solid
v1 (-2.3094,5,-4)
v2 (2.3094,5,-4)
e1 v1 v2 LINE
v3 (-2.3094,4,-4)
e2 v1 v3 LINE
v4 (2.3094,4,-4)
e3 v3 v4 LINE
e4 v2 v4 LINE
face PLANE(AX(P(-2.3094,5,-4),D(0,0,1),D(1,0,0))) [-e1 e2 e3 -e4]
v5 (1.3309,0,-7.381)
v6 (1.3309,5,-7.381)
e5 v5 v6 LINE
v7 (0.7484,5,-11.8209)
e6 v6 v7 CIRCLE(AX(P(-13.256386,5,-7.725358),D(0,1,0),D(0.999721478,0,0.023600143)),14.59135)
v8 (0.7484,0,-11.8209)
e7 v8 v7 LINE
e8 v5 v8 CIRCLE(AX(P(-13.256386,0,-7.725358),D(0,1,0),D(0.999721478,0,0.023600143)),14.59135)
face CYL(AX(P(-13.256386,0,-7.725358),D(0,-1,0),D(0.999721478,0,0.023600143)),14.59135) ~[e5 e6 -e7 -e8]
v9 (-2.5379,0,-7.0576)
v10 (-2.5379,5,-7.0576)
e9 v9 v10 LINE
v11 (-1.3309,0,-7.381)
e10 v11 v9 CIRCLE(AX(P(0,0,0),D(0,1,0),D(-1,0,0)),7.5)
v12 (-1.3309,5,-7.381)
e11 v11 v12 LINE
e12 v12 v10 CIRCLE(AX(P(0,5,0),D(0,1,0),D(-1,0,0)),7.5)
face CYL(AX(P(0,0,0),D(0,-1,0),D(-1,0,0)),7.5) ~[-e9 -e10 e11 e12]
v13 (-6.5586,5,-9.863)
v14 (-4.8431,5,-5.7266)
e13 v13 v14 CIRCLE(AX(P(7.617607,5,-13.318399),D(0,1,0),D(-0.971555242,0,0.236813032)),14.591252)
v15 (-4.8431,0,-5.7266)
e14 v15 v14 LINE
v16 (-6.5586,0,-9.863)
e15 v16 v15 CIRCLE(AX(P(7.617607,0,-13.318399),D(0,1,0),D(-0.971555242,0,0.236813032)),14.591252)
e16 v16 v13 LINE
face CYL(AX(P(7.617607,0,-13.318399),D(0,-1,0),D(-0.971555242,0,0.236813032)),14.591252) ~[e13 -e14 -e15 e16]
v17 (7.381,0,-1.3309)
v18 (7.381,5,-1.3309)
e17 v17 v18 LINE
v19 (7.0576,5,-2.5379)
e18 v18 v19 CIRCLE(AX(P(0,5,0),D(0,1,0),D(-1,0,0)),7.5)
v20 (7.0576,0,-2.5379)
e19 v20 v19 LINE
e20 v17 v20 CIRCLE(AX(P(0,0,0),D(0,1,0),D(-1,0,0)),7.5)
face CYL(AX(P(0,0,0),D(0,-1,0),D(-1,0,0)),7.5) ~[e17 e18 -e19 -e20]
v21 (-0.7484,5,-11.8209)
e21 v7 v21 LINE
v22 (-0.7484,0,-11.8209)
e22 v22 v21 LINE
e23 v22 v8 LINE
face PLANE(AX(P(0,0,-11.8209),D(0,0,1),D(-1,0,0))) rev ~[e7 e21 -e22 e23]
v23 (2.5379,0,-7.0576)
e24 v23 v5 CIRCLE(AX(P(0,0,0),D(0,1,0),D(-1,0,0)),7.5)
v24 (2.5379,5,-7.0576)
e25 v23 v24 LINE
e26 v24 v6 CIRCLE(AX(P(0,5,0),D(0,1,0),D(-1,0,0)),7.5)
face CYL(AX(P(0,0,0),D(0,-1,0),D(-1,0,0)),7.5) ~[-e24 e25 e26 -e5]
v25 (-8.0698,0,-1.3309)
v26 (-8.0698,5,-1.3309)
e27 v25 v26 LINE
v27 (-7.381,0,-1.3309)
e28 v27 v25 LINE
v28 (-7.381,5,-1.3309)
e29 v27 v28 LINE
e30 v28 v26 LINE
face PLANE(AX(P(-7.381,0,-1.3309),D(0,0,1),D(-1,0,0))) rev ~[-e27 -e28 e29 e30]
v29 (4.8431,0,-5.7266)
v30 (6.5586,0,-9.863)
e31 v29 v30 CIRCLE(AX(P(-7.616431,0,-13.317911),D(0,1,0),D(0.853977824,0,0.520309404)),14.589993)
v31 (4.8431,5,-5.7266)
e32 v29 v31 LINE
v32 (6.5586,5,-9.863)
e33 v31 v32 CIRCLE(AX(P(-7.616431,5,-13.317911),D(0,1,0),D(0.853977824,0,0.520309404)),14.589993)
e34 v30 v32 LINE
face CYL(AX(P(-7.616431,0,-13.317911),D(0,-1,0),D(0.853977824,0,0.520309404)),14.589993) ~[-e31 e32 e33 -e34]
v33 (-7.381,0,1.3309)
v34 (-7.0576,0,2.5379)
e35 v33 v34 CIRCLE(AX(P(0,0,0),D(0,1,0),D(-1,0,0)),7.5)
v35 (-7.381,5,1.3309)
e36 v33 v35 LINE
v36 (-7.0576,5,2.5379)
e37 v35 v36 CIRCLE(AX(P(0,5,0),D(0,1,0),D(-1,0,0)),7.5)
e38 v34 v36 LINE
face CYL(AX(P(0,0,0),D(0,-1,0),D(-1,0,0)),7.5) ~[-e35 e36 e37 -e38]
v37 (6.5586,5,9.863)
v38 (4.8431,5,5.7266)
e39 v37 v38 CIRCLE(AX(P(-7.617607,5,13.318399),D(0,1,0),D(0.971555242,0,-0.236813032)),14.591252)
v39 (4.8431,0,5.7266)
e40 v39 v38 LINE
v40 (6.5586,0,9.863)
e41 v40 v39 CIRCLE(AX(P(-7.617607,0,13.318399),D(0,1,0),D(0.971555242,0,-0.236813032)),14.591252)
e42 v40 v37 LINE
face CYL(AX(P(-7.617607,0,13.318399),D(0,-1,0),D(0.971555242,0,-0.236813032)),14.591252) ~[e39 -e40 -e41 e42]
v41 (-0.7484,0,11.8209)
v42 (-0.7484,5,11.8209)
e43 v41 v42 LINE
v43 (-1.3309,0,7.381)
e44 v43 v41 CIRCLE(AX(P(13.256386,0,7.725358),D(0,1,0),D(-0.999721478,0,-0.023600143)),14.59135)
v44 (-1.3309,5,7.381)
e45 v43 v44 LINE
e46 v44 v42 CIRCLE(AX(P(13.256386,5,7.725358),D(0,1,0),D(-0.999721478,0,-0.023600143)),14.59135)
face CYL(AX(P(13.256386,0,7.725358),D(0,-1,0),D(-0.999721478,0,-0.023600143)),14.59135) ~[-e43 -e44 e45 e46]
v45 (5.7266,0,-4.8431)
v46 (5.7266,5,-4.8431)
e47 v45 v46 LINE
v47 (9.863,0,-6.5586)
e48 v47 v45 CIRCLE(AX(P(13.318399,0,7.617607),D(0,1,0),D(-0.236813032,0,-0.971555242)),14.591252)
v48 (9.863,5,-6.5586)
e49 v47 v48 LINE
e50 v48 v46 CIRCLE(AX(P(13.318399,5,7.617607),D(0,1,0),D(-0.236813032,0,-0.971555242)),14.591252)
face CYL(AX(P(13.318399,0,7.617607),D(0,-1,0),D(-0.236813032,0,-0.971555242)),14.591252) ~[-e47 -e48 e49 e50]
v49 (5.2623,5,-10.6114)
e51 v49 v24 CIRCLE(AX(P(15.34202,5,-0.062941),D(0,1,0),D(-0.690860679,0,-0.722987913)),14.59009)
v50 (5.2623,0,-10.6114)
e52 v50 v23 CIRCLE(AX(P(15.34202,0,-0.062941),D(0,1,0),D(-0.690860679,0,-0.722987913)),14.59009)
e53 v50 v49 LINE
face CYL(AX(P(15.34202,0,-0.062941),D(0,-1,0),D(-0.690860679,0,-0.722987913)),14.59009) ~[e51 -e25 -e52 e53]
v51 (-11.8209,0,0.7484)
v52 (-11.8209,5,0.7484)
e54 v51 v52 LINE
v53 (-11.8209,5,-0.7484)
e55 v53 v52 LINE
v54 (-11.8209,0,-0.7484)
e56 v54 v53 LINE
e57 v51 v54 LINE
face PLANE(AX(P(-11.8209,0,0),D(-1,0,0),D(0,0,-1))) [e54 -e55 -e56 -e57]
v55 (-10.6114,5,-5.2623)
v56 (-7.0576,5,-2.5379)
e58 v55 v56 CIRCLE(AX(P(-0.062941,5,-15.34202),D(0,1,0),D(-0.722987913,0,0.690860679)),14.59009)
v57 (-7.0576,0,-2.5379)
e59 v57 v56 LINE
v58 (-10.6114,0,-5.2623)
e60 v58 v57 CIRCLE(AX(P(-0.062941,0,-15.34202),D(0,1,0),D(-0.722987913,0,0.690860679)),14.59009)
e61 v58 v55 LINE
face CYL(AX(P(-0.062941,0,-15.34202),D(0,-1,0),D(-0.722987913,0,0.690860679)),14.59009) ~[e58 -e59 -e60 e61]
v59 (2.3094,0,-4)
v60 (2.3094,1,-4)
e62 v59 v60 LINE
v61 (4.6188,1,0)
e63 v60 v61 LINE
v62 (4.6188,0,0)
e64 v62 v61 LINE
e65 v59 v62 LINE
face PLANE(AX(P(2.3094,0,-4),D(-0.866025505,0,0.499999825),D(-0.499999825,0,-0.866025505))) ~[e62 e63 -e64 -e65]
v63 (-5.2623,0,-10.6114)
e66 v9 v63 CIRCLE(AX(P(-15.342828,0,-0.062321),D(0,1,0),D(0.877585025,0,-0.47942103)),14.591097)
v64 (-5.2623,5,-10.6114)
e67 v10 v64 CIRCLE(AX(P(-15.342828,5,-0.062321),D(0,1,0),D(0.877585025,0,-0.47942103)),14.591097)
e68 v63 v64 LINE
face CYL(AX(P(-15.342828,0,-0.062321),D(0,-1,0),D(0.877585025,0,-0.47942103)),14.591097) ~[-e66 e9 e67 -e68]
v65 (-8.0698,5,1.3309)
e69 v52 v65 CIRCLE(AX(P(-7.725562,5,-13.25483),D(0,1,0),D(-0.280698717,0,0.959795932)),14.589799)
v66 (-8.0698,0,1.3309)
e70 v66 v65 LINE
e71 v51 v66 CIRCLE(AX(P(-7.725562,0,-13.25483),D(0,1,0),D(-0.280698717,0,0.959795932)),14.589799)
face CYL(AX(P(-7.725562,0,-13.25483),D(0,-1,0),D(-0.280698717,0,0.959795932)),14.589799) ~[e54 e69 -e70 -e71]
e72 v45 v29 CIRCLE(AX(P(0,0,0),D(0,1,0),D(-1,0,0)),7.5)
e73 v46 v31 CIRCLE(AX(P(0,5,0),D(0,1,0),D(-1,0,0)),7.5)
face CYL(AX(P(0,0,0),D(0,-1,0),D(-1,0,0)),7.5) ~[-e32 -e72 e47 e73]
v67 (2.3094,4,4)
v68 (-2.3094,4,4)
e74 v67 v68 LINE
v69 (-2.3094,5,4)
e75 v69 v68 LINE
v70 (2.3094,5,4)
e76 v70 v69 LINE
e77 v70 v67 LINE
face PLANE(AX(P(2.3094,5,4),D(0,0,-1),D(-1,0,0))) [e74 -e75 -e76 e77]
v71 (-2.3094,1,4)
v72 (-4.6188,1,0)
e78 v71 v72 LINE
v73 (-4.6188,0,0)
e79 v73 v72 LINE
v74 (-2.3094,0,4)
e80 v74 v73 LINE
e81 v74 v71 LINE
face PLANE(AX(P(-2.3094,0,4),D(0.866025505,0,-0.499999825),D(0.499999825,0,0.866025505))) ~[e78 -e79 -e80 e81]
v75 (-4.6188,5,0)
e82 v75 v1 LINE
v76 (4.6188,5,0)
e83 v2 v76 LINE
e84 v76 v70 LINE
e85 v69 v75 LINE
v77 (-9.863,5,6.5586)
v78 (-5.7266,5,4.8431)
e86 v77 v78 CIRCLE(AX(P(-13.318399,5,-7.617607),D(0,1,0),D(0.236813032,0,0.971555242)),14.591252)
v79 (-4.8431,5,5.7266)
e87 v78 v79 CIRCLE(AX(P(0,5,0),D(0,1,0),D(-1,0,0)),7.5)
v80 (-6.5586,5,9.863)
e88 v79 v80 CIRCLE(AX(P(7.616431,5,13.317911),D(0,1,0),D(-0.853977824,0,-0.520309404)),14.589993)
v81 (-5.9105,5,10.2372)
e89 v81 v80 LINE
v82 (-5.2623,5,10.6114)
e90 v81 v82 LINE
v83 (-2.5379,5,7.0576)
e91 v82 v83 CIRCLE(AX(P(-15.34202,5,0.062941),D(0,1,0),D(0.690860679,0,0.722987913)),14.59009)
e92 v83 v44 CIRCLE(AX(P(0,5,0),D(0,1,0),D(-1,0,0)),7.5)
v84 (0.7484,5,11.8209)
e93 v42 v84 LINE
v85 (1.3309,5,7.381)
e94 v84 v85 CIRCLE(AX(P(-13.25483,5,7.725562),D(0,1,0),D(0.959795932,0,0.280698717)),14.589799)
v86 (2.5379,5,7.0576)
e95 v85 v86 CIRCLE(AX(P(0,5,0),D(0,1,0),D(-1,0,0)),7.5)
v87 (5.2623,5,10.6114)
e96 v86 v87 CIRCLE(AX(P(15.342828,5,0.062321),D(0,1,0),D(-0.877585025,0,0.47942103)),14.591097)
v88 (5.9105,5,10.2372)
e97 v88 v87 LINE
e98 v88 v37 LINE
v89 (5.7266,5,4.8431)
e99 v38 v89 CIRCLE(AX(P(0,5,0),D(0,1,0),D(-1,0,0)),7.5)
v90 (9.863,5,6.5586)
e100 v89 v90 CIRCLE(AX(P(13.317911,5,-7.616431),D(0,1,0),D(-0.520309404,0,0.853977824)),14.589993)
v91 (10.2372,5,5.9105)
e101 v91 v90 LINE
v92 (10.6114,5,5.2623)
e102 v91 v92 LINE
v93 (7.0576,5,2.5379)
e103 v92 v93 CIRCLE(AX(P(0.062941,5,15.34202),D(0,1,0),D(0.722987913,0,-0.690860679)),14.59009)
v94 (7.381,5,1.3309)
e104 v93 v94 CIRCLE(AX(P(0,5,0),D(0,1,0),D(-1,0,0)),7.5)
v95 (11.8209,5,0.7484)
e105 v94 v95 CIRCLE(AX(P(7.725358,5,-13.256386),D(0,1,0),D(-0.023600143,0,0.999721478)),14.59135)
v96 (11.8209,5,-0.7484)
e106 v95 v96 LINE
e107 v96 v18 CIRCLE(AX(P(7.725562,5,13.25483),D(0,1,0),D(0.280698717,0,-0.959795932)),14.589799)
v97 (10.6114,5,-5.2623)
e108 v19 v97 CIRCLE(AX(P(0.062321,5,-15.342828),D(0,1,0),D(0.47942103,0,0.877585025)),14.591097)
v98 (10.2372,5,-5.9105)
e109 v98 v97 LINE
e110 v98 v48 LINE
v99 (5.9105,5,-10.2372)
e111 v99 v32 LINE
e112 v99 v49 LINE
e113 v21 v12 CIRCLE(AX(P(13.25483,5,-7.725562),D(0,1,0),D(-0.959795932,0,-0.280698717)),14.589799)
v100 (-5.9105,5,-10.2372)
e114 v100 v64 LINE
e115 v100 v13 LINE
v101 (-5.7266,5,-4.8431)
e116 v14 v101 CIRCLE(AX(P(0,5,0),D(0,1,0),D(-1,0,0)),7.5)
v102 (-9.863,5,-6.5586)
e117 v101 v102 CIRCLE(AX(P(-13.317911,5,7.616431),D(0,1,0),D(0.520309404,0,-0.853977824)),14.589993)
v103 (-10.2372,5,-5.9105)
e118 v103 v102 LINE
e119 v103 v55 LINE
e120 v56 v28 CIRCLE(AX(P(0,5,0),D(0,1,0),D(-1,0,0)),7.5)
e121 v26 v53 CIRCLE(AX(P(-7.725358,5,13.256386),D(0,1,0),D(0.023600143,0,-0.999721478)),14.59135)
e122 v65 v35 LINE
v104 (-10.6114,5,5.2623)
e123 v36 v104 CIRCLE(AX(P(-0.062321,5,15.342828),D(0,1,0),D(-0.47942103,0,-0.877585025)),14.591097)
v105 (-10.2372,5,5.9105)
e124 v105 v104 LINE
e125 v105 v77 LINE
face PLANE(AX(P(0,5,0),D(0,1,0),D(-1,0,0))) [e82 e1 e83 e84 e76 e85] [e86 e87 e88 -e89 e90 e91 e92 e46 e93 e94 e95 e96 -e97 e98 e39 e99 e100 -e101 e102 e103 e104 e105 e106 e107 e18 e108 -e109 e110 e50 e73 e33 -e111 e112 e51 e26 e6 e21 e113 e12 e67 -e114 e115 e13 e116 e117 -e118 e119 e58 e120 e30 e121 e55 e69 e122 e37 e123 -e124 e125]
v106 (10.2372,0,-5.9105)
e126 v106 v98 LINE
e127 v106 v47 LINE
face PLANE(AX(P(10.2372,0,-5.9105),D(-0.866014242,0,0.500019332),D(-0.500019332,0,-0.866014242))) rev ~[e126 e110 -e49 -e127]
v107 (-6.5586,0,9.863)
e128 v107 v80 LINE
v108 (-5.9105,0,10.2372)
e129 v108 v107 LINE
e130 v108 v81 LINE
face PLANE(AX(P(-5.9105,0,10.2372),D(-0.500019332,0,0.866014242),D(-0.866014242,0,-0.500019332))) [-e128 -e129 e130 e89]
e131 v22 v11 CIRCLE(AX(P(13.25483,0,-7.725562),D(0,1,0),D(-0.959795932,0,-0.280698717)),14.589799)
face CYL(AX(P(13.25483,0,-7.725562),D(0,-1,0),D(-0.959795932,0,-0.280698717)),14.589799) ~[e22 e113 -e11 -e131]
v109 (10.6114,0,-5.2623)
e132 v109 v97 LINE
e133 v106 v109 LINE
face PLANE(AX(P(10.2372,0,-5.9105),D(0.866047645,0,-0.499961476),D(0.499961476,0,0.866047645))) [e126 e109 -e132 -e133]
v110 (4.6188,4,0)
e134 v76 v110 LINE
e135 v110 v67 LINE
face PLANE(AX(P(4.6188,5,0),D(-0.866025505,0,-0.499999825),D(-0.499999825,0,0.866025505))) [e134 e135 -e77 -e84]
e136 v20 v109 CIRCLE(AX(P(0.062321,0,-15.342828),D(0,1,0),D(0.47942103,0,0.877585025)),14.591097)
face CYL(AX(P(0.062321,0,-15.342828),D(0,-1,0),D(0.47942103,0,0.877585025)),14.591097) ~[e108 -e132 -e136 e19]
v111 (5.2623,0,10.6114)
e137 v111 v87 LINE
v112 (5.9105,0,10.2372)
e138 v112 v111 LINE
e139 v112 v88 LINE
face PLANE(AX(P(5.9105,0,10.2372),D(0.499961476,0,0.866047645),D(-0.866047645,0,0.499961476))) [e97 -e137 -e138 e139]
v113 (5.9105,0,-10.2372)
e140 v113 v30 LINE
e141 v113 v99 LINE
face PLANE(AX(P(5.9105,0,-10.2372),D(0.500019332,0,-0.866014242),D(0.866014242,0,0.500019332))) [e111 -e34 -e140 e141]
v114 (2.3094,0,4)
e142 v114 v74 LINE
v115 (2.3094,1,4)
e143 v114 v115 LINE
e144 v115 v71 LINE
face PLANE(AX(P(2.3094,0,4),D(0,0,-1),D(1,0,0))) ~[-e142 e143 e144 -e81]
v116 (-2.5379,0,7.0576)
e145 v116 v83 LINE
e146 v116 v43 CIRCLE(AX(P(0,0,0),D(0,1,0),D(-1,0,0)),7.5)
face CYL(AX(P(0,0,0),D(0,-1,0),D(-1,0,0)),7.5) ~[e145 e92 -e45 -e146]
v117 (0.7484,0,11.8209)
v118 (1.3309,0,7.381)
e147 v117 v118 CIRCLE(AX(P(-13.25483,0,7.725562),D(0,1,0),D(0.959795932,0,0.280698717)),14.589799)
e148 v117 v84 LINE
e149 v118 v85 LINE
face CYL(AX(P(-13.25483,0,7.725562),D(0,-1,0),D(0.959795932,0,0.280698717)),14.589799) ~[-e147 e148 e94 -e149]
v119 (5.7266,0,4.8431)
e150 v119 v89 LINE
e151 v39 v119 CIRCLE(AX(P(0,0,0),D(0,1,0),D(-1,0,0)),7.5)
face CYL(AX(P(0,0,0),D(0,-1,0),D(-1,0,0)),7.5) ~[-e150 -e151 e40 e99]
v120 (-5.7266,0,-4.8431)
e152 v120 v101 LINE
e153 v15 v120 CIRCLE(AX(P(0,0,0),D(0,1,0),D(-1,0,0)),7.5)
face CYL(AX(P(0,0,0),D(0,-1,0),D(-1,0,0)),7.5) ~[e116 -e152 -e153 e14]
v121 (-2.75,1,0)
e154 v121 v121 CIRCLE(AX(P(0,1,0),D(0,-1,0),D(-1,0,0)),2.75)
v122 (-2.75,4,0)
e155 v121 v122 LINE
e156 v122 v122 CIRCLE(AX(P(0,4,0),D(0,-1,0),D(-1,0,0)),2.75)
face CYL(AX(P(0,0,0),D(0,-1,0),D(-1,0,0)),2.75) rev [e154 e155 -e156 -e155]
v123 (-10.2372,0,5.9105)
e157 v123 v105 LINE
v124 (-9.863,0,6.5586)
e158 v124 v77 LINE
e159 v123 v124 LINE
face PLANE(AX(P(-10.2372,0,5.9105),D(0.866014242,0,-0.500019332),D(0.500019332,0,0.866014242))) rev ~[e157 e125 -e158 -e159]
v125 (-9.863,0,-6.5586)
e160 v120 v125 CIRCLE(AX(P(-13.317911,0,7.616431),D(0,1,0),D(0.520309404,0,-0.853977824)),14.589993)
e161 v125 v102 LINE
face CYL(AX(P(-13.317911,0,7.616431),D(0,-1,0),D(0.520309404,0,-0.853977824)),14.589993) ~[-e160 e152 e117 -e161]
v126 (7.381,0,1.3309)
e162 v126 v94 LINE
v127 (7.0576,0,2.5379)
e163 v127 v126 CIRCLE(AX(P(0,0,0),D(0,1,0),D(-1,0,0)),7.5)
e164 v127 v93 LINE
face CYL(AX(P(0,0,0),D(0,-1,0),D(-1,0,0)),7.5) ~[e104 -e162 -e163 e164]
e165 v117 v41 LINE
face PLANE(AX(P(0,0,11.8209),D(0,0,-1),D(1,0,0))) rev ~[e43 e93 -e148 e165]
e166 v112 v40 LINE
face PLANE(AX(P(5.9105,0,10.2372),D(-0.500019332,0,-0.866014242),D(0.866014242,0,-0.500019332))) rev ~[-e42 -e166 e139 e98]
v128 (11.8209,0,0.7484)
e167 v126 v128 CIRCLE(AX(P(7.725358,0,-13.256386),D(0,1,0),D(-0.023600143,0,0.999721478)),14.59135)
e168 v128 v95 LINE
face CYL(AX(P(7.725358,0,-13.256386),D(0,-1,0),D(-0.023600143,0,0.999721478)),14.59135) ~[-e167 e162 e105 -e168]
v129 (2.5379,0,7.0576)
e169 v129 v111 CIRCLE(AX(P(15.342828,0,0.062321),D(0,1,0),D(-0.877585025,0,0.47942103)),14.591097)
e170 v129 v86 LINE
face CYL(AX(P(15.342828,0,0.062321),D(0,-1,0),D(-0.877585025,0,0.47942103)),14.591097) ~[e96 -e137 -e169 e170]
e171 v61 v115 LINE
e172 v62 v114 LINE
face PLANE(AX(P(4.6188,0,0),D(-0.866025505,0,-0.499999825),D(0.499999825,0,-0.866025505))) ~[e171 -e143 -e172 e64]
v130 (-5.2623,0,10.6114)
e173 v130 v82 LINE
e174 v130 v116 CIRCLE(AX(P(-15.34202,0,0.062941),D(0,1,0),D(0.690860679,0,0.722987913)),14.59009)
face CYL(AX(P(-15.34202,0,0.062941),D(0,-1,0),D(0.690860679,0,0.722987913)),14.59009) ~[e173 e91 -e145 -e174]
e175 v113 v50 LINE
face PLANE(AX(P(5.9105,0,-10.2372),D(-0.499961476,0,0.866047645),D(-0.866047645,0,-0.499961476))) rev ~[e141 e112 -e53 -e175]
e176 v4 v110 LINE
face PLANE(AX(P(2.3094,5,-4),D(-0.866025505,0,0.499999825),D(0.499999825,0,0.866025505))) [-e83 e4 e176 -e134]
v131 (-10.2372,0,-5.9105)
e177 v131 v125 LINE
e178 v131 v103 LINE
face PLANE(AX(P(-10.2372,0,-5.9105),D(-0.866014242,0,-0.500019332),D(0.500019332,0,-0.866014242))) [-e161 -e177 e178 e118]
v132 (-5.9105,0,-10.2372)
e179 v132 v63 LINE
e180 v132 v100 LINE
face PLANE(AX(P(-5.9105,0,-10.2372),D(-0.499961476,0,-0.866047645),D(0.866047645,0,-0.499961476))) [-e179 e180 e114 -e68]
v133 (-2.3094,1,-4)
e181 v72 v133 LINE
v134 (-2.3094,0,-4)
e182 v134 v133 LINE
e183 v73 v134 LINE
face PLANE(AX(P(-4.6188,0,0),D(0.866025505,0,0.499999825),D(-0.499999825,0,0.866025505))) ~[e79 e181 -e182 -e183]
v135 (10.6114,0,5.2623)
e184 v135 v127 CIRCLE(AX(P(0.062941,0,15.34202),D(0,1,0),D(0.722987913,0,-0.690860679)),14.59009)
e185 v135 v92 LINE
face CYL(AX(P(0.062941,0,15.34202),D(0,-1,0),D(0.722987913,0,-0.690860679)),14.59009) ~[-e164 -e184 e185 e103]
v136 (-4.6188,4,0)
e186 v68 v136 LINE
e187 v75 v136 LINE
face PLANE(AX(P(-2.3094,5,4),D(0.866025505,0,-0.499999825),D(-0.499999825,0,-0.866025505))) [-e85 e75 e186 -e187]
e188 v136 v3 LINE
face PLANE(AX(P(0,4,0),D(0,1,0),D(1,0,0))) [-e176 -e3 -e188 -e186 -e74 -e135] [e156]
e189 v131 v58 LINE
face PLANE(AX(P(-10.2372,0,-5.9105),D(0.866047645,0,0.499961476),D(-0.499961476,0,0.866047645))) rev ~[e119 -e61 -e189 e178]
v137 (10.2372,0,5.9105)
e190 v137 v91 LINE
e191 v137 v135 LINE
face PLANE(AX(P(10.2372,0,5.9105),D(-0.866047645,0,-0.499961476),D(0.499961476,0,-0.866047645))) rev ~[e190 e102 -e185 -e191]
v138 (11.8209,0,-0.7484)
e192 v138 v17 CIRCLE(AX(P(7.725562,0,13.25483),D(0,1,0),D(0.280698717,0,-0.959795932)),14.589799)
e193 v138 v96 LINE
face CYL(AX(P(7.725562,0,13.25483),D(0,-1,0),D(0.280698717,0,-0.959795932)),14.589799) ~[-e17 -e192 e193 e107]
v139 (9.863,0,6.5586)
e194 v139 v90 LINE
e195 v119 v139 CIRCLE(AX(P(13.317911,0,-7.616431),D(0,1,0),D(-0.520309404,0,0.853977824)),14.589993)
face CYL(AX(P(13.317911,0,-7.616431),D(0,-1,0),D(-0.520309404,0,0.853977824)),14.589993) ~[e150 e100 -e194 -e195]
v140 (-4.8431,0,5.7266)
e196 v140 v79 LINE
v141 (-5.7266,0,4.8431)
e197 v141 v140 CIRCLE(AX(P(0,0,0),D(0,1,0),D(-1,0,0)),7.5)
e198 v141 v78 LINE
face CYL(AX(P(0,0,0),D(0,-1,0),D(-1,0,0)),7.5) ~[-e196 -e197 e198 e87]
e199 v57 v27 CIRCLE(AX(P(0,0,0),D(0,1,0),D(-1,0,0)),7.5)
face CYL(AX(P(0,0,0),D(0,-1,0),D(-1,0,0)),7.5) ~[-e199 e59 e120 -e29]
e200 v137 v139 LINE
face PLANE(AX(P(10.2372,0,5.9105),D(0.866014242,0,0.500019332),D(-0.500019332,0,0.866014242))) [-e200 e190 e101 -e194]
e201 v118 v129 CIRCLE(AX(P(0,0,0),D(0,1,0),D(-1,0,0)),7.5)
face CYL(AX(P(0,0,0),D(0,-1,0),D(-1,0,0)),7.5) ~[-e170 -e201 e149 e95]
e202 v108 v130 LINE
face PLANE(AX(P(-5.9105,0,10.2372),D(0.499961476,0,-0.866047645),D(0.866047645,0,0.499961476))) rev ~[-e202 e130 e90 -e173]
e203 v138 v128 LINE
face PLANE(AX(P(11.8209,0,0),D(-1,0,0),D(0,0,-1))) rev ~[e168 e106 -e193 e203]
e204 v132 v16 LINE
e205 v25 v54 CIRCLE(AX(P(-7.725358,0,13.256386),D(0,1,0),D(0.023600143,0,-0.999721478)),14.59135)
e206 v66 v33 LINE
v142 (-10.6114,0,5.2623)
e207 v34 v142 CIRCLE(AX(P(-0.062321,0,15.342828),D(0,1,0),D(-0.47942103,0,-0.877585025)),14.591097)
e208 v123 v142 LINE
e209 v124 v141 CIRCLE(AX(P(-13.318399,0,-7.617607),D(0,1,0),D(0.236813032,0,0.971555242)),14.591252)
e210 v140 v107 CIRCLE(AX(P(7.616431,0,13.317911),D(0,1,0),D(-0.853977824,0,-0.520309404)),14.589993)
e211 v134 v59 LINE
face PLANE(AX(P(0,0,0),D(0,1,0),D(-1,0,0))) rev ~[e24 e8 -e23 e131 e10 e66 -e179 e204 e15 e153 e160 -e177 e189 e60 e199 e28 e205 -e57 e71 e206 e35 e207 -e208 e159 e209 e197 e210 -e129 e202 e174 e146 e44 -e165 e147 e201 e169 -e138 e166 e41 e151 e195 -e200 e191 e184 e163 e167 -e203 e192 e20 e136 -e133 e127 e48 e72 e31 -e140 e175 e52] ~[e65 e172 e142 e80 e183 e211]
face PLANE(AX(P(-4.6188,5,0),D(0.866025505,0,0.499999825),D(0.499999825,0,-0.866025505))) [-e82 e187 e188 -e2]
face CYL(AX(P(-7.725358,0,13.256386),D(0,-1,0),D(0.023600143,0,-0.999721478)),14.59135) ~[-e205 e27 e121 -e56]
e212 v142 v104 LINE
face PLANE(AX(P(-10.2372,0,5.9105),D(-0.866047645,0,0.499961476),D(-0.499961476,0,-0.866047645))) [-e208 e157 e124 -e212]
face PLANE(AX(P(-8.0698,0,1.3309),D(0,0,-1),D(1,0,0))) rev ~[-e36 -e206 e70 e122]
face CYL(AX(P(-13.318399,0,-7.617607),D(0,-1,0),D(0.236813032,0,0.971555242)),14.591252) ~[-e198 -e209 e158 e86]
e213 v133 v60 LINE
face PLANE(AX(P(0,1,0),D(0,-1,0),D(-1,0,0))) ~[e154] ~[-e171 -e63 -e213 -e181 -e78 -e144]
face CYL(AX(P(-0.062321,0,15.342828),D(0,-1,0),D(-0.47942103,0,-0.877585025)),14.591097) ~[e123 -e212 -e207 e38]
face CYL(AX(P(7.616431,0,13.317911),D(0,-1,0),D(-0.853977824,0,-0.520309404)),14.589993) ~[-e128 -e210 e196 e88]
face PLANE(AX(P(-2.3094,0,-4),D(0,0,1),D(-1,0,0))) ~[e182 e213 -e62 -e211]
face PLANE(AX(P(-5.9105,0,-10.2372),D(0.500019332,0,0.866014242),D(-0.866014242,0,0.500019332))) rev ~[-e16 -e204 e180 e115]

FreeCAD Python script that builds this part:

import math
import FreeCAD as App
import Part
import Sketcher
from FreeCAD import Vector
Q = App.Units.Quantity

doc = App.newDocument("Part")
params = doc.addObject("Spreadsheet::Sheet", "Params")
for row, (alias, value) in enumerate([
    ("sketch1_diameter", "5.5 mm"),
    ("sketch1_radius", "7.5 mm"),
    ("pad1_length", "5 mm"),
    ("pocket1_length", "1 mm"),
], start=1):
    params.set(f"A{row}", alias)
    params.set(f"B{row}", "=" + value)
    params.setAlias(f"B{row}", alias)

body = doc.addObject("PartDesign::Body", "Body")

sketch1 = body.newObject("Sketcher::SketchObject", "Sketch")
sketch1.AttachmentSupport = (doc.getObject("XZ_Plane"), [""])
sketch1.MapMode = "FlatFace"
sketch1.addGeometry(Part.ArcOfCircle(Part.Circle(Vector(0, 0, 0), Vector(0, 0, 1), 7.5), math.radians(-169.78), math.radians(-160.22)), False)
sketch1.addGeometry(Part.LineSegment(Vector(-7.4, -1.3, 0), Vector(-8.1, -1.3, 0)), False)
sketch1.addGeometry(Part.ArcOfCircle(Part.Circle(Vector(-7.7, 13.3, 0), Vector(0, 0, 1), 14.6), math.radians(-106.3), math.radians(-91.35)), False)
sketch1.addGeometry(Part.LineSegment(Vector(-11.8, -0.7, 0), Vector(-11.8, 0.7, 0)), False)
sketch1.addGeometry(Part.ArcOfCircle(Part.Circle(Vector(-7.7, -13.3, 0), Vector(0, 0, 1), 14.6), math.radians(91.35), math.radians(106.3)), False)
sketch1.addGeometry(Part.LineSegment(Vector(-8.1, 1.3, 0), Vector(-7.4, 1.3, 0)), False)
sketch1.addGeometry(Part.ArcOfCircle(Part.Circle(Vector(0, 0, 0), Vector(0, 0, 1), 7.5), math.radians(160.22), math.radians(169.78)), False)
sketch1.addGeometry(Part.ArcOfCircle(Part.Circle(Vector(-0.1, 15.3, 0), Vector(0, 0, 1), 14.6), math.radians(-136.3), math.radians(-118.65)), False)
sketch1.addGeometry(Part.LineSegment(Vector(-10.6, 5.3, 0), Vector(-10.2, 5.9, 0)), False)
sketch1.addGeometry(Part.LineSegment(Vector(-10.2, 5.9, 0), Vector(-9.9, 6.6, 0)), False)
sketch1.addGeometry(Part.ArcOfCircle(Part.Circle(Vector(-13.3, -7.6, 0), Vector(0, 0, 1), 14.6), math.radians(58.65), math.radians(76.3)), False)
sketch1.addGeometry(Part.ArcOfCircle(Part.Circle(Vector(0, 0, 0), Vector(0, 0, 1), 7.5), math.radians(130.22), math.radians(139.78)), False)
sketch1.addGeometry(Part.ArcOfCircle(Part.Circle(Vector(7.6, 13.3, 0), Vector(0, 0, 1), 14.6), math.radians(-166.3), math.radians(-148.65)), False)
sketch1.addGeometry(Part.LineSegment(Vector(-6.6, 9.9, 0), Vector(-5.9, 10.2, 0)), False)
sketch1.addGeometry(Part.LineSegment(Vector(-5.9, 10.2, 0), Vector(-5.3, 10.6, 0)), False)
sketch1.addGeometry(Part.ArcOfCircle(Part.Circle(Vector(-15.3, 0.1, 0), Vector(0, 0, 1), 14.6), math.radians(28.65), math.radians(46.3)), False)
sketch1.addGeometry(Part.ArcOfCircle(Part.Circle(Vector(0, 0, 0), Vector(0, 0, 1), 7.5), math.radians(100.22), math.radians(109.78)), False)
sketch1.addGeometry(Part.ArcOfCircle(Part.Circle(Vector(13.3, 7.7, 0), Vector(0, 0, 1), 14.6), math.radians(163.7), math.radians(181.35)), False)
sketch1.addGeometry(Part.LineSegment(Vector(-0.7, 11.8, 0), Vector(0.7, 11.8, 0)), False)
sketch1.addGeometry(Part.ArcOfCircle(Part.Circle(Vector(-13.3, 7.7, 0), Vector(0, 0, 1), 14.6), math.radians(-1.35), math.radians(16.3)), False)
sketch1.addGeometry(Part.ArcOfCircle(Part.Circle(Vector(0, 0, 0), Vector(0, 0, 1), 7.5), math.radians(70.22), math.radians(79.78)), False)
sketch1.addGeometry(Part.ArcOfCircle(Part.Circle(Vector(15.3, 0.1, 0), Vector(0, 0, 1), 14.6), math.radians(133.7), math.radians(151.35)), False)
sketch1.addGeometry(Part.LineSegment(Vector(5.3, 10.6, 0), Vector(5.9, 10.2, 0)), False)
sketch1.addGeometry(Part.LineSegment(Vector(5.9, 10.2, 0), Vector(6.6, 9.9, 0)), False)
sketch1.addGeometry(Part.ArcOfCircle(Part.Circle(Vector(-7.6, 13.3, 0), Vector(0, 0, 1), 14.6), math.radians(-31.35), math.radians(-13.7)), False)
sketch1.addGeometry(Part.ArcOfCircle(Part.Circle(Vector(0, 0, 0), Vector(0, 0, 1), 7.5), math.radians(40.22), math.radians(49.78)), False)
sketch1.addGeometry(Part.ArcOfCircle(Part.Circle(Vector(13.3, -7.6, 0), Vector(0, 0, 1), 14.6), math.radians(103.7), math.radians(121.35)), False)
sketch1.addGeometry(Part.LineSegment(Vector(9.9, 6.6, 0), Vector(10.2, 5.9, 0)), False)
sketch1.addGeometry(Part.LineSegment(Vector(10.2, 5.9, 0), Vector(10.6, 5.3, 0)), False)
sketch1.addGeometry(Part.ArcOfCircle(Part.Circle(Vector(0.1, 15.3, 0), Vector(0, 0, 1), 14.6), math.radians(-61.35), math.radians(-43.7)), False)
sketch1.addGeometry(Part.ArcOfCircle(Part.Circle(Vector(0, 0, 0), Vector(0, 0, 1), 7.5), math.radians(10.22), math.radians(19.78)), False)
sketch1.addGeometry(Part.ArcOfCircle(Part.Circle(Vector(7.7, -13.3, 0), Vector(0, 0, 1), 14.6), math.radians(73.7), math.radians(91.35)), False)
sketch1.addGeometry(Part.LineSegment(Vector(11.8, 0.7, 0), Vector(11.8, -0.7, 0)), False)
sketch1.addGeometry(Part.ArcOfCircle(Part.Circle(Vector(7.7, 13.3, 0), Vector(0, 0, 1), 14.6), math.radians(-91.35), math.radians(-73.7)), False)
sketch1.addGeometry(Part.ArcOfCircle(Part.Circle(Vector(0, 0, 0), Vector(0, 0, 1), 7.5), math.radians(-19.78), math.radians(-10.22)), False)
sketch1.addGeometry(Part.ArcOfCircle(Part.Circle(Vector(0.1, -15.3, 0), Vector(0, 0, 1), 14.6), math.radians(43.7), math.radians(61.35)), False)
sketch1.addGeometry(Part.LineSegment(Vector(10.6, -5.3, 0), Vector(10.2, -5.9, 0)), False)
sketch1.addGeometry(Part.LineSegment(Vector(10.2, -5.9, 0), Vector(9.9, -6.6, 0)), False)
sketch1.addGeometry(Part.ArcOfCircle(Part.Circle(Vector(13.3, 7.6, 0), Vector(0, 0, 1), 14.6), math.radians(-121.35), math.radians(-103.7)), False)
sketch1.addGeometry(Part.ArcOfCircle(Part.Circle(Vector(0, 0, 0), Vector(0, 0, 1), 7.5), math.radians(-49.78), math.radians(-40.22)), False)
sketch1.addGeometry(Part.ArcOfCircle(Part.Circle(Vector(-7.6, -13.3, 0), Vector(0, 0, 1), 14.6), math.radians(13.7), math.radians(31.35)), False)
sketch1.addGeometry(Part.LineSegment(Vector(6.6, -9.9, 0), Vector(5.9, -10.2, 0)), False)
sketch1.addGeometry(Part.LineSegment(Vector(5.9, -10.2, 0), Vector(5.3, -10.6, 0)), False)
sketch1.addGeometry(Part.ArcOfCircle(Part.Circle(Vector(15.3, -0.1, 0), Vector(0, 0, 1), 14.6), math.radians(-151.35), math.radians(-133.7)), False)
sketch1.addGeometry(Part.ArcOfCircle(Part.Circle(Vector(0, 0, 0), Vector(0, 0, 1), 7.5), math.radians(-79.78), math.radians(-70.22)), False)
sketch1.addGeometry(Part.ArcOfCircle(Part.Circle(Vector(-13.3, -7.7, 0), Vector(0, 0, 1), 14.6), math.radians(-16.3), math.radians(1.35)), False)
sketch1.addGeometry(Part.LineSegment(Vector(0.7, -11.8, 0), Vector(-0.7, -11.8, 0)), False)
sketch1.addGeometry(Part.ArcOfCircle(Part.Circle(Vector(13.3, -7.7, 0), Vector(0, 0, 1), 14.6), math.radians(178.65), math.radians(196.3)), False)
sketch1.addGeometry(Part.ArcOfCircle(Part.Circle(Vector(0, 0, 0), Vector(0, 0, 1), 7.5), math.radians(-109.78), math.radians(-100.22)), False)
sketch1.addGeometry(Part.ArcOfCircle(Part.Circle(Vector(-15.3, -0.1, 0), Vector(0, 0, 1), 14.6), math.radians(-46.3), math.radians(-28.65)), False)
sketch1.addGeometry(Part.LineSegment(Vector(-5.3, -10.6, 0), Vector(-5.9, -10.2, 0)), False)
sketch1.addGeometry(Part.LineSegment(Vector(-5.9, -10.2, 0), Vector(-6.6, -9.9, 0)), False)
sketch1.addGeometry(Part.ArcOfCircle(Part.Circle(Vector(7.6, -13.3, 0), Vector(0, 0, 1), 14.6), math.radians(148.65), math.radians(166.3)), False)
sketch1.addGeometry(Part.ArcOfCircle(Part.Circle(Vector(0, 0, 0), Vector(0, 0, 1), 7.5), math.radians(-139.78), math.radians(-130.22)), False)
sketch1.addGeometry(Part.ArcOfCircle(Part.Circle(Vector(-13.3, 7.6, 0), Vector(0, 0, 1), 14.6), math.radians(-76.3), math.radians(-58.65)), False)
sketch1.addGeometry(Part.LineSegment(Vector(-9.9, -6.6, 0), Vector(-10.2, -5.9, 0)), False)
sketch1.addGeometry(Part.LineSegment(Vector(-10.2, -5.9, 0), Vector(-10.6, -5.3, 0)), False)
sketch1.addGeometry(Part.ArcOfCircle(Part.Circle(Vector(-0.1, -15.3, 0), Vector(0, 0, 1), 14.6), math.radians(118.65), math.radians(136.3)), False)
sketch1.addGeometry(Part.Circle(Vector(0, 0, 0), Vector(0, 0, 1), 2.8), False)
sketch1.addConstraint(Sketcher.Constraint("Coincident", 0, 1, 1, 1))
sketch1.addConstraint(Sketcher.Constraint("Coincident", 1, 2, 2, 2))
sketch1.addConstraint(Sketcher.Constraint("Coincident", 2, 1, 3, 1))
sketch1.addConstraint(Sketcher.Constraint("Coincident", 3, 2, 4, 2))
sketch1.addConstraint(Sketcher.Constraint("Coincident", 4, 1, 5, 1))
sketch1.addConstraint(Sketcher.Constraint("Coincident", 5, 2, 6, 2))
sketch1.addConstraint(Sketcher.Constraint("Coincident", 6, 1, 7, 2))
sketch1.addConstraint(Sketcher.Constraint("Coincident", 7, 1, 8, 1))
sketch1.addConstraint(Sketcher.Constraint("Coincident", 8, 2, 9, 1))
sketch1.addConstraint(Sketcher.Constraint("Coincident", 9, 2, 10, 2))
sketch1.addConstraint(Sketcher.Constraint("Coincident", 10, 1, 11, 2))
sketch1.addConstraint(Sketcher.Constraint("Coincident", 11, 1, 12, 2))
sketch1.addConstraint(Sketcher.Constraint("Coincident", 12, 1, 13, 1))
sketch1.addConstraint(Sketcher.Constraint("Coincident", 13, 2, 14, 1))
sketch1.addConstraint(Sketcher.Constraint("Coincident", 14, 2, 15, 2))
sketch1.addConstraint(Sketcher.Constraint("Coincident", 15, 1, 16, 2))
sketch1.addConstraint(Sketcher.Constraint("Coincident", 16, 1, 17, 2))
sketch1.addConstraint(Sketcher.Constraint("Coincident", 17, 1, 18, 1))
sketch1.addConstraint(Sketcher.Constraint("Coincident", 18, 2, 19, 2))
sketch1.addConstraint(Sketcher.Constraint("Coincident", 19, 1, 20, 2))
sketch1.addConstraint(Sketcher.Constraint("Coincident", 20, 1, 21, 2))
sketch1.addConstraint(Sketcher.Constraint("Coincident", 21, 1, 22, 1))
sketch1.addConstraint(Sketcher.Constraint("Coincident", 22, 2, 23, 1))
sketch1.addConstraint(Sketcher.Constraint("Coincident", 23, 2, 24, 2))
sketch1.addConstraint(Sketcher.Constraint("Coincident", 24, 1, 25, 2))
sketch1.addConstraint(Sketcher.Constraint("Coincident", 25, 1, 26, 2))
sketch1.addConstraint(Sketcher.Constraint("Coincident", 26, 1, 27, 1))
sketch1.addConstraint(Sketcher.Constraint("Coincident", 27, 2, 28, 1))
sketch1.addConstraint(Sketcher.Constraint("Coincident", 28, 2, 29, 2))
sketch1.addConstraint(Sketcher.Constraint("Coincident", 29, 1, 30, 2))
sketch1.addConstraint(Sketcher.Constraint("Coincident", 30, 1, 31, 2))
sketch1.addConstraint(Sketcher.Constraint("Coincident", 31, 1, 32, 1))
sketch1.addConstraint(Sketcher.Constraint("Coincident", 32, 2, 33, 2))
sketch1.addConstraint(Sketcher.Constraint("Coincident", 33, 1, 34, 2))
sketch1.addConstraint(Sketcher.Constraint("Coincident", 34, 1, 35, 2))
sketch1.addConstraint(Sketcher.Constraint("Coincident", 35, 1, 36, 1))
sketch1.addConstraint(Sketcher.Constraint("Coincident", 36, 2, 37, 1))
sketch1.addConstraint(Sketcher.Constraint("Coincident", 37, 2, 38, 2))
sketch1.addConstraint(Sketcher.Constraint("Coincident", 38, 1, 39, 2))
sketch1.addConstraint(Sketcher.Constraint("Coincident", 39, 1, 40, 2))
sketch1.addConstraint(Sketcher.Constraint("Coincident", 40, 1, 41, 1))
sketch1.addConstraint(Sketcher.Constraint("Coincident", 41, 2, 42, 1))
sketch1.addConstraint(Sketcher.Constraint("Coincident", 42, 2, 43, 2))
sketch1.addConstraint(Sketcher.Constraint("Coincident", 43, 1, 44, 2))
sketch1.addConstraint(Sketcher.Constraint("Coincident", 44, 1, 45, 2))
sketch1.addConstraint(Sketcher.Constraint("Coincident", 45, 1, 46, 1))
sketch1.addConstraint(Sketcher.Constraint("Coincident", 46, 2, 47, 2))
sketch1.addConstraint(Sketcher.Constraint("Coincident", 47, 1, 48, 2))
sketch1.addConstraint(Sketcher.Constraint("Coincident", 48, 1, 49, 2))
sketch1.addConstraint(Sketcher.Constraint("Coincident", 49, 1, 50, 1))
sketch1.addConstraint(Sketcher.Constraint("Coincident", 50, 2, 51, 1))
sketch1.addConstraint(Sketcher.Constraint("Coincident", 51, 2, 52, 2))
sketch1.addConstraint(Sketcher.Constraint("Coincident", 52, 1, 53, 2))
sketch1.addConstraint(Sketcher.Constraint("Coincident", 53, 1, 54, 2))
sketch1.addConstraint(Sketcher.Constraint("Coincident", 54, 1, 55, 1))
sketch1.addConstraint(Sketcher.Constraint("Coincident", 55, 2, 56, 1))
sketch1.addConstraint(Sketcher.Constraint("Coincident", 56, 2, 57, 2))
sketch1.addConstraint(Sketcher.Constraint("Coincident", 57, 1, 0, 2))
sketch1.addConstraint(Sketcher.Constraint("Horizontal", 1))
sketch1.addConstraint(Sketcher.Constraint("Vertical", 3))
sketch1.addConstraint(Sketcher.Constraint("Horizontal", 5))
sketch1.addConstraint(Sketcher.Constraint("Horizontal", 18))
sketch1.addConstraint(Sketcher.Constraint("Vertical", 32))
sketch1.addConstraint(Sketcher.Constraint("Horizontal", 46))
sketch1.addConstraint(Sketcher.Constraint("Coincident", 0, 3, -1, 1))
sketch1.addConstraint(Sketcher.Constraint("Coincident", 6, 3, -1, 1))
sketch1.addConstraint(Sketcher.Constraint("Coincident", 11, 3, -1, 1))
sketch1.addConstraint(Sketcher.Constraint("Coincident", 16, 3, -1, 1))
sketch1.addConstraint(Sketcher.Constraint("Coincident", 20, 3, -1, 1))
sketch1.addConstraint(Sketcher.Constraint("Coincident", 25, 3, -1, 1))
sketch1.addConstraint(Sketcher.Constraint("Coincident", 30, 3, -1, 1))
sketch1.addConstraint(Sketcher.Constraint("Coincident", 34, 3, -1, 1))
sketch1.addConstraint(Sketcher.Constraint("Coincident", 39, 3, -1, 1))
sketch1.addConstraint(Sketcher.Constraint("Coincident", 44, 3, -1, 1))
sketch1.addConstraint(Sketcher.Constraint("Coincident", 48, 3, -1, 1))
sketch1.addConstraint(Sketcher.Constraint("Coincident", 53, 3, -1, 1))
sketch1.addConstraint(Sketcher.Constraint("Coincident", 58, 3, -1, 1))
sketch1.addConstraint(Sketcher.Constraint("Equal", 2, 4))
sketch1.addConstraint(Sketcher.Constraint("Equal", 0, 6))
sketch1.addConstraint(Sketcher.Constraint("Equal", 4, 7))
sketch1.addConstraint(Sketcher.Constraint("Equal", 7, 10))
sketch1.addConstraint(Sketcher.Constraint("Equal", 6, 11))
sketch1.addConstraint(Sketcher.Constraint("Equal", 10, 12))
sketch1.addConstraint(Sketcher.Constraint("Equal", 12, 15))
sketch1.addConstraint(Sketcher.Constraint("Equal", 11, 16))
sketch1.addConstraint(Sketcher.Constraint("Equal", 15, 17))
sketch1.addConstraint(Sketcher.Constraint("Equal", 17, 19))
sketch1.addConstraint(Sketcher.Constraint("Equal", 16, 20))
sketch1.addConstraint(Sketcher.Constraint("Equal", 19, 21))
sketch1.addConstraint(Sketcher.Constraint("Equal", 21, 24))
sketch1.addConstraint(Sketcher.Constraint("Equal", 20, 25))
sketch1.addConstraint(Sketcher.Constraint("Equal", 24, 26))
sketch1.addConstraint(Sketcher.Constraint("Equal", 26, 29))
sketch1.addConstraint(Sketcher.Constraint("Equal", 25, 30))
sketch1.addConstraint(Sketcher.Constraint("Equal", 29, 31))
sketch1.addConstraint(Sketcher.Constraint("Equal", 31, 33))
sketch1.addConstraint(Sketcher.Constraint("Equal", 30, 34))
sketch1.addConstraint(Sketcher.Constraint("Equal", 33, 35))
sketch1.addConstraint(Sketcher.Constraint("Equal", 35, 38))
sketch1.addConstraint(Sketcher.Constraint("Equal", 34, 39))
sketch1.addConstraint(Sketcher.Constraint("Equal", 38, 40))
sketch1.addConstraint(Sketcher.Constraint("Equal", 40, 43))
sketch1.addConstraint(Sketcher.Constraint("Equal", 39, 44))
sketch1.addConstraint(Sketcher.Constraint("Equal", 43, 45))
sketch1.addConstraint(Sketcher.Constraint("Equal", 45, 47))
sketch1.addConstraint(Sketcher.Constraint("Equal", 44, 48))
sketch1.addConstraint(Sketcher.Constraint("Equal", 47, 49))
sketch1.addConstraint(Sketcher.Constraint("Equal", 49, 52))
sketch1.addConstraint(Sketcher.Constraint("Equal", 48, 53))
sketch1.addConstraint(Sketcher.Constraint("Equal", 52, 54))
sketch1.addConstraint(Sketcher.Constraint("Equal", 54, 57))
sketch1.addConstraint(Sketcher.Constraint("Symmetric", 2, 3, 31, 3, -1, 1))
sketch1.addConstraint(Sketcher.Constraint("Symmetric", 4, 3, 33, 3, -1, 1))
sketch1.addConstraint(Sketcher.Constraint("Symmetric", 7, 3, 35, 3, -1, 1))
sketch1.addConstraint(Sketcher.Constraint("Symmetric", 10, 3, 38, 3, -1, 1))
sketch1.addConstraint(Sketcher.Constraint("Symmetric", 12, 3, 40, 3, -1, 1))
sketch1.addConstraint(Sketcher.Constraint("Symmetric", 15, 3, 43, 3, -1, 1))
sketch1.addConstraint(Sketcher.Constraint("Symmetric", 17, 3, 45, 3, -1, 1))
sketch1.addConstraint(Sketcher.Constraint("Symmetric", 19, 3, 47, 3, -1, 1))
sketch1.addConstraint(Sketcher.Constraint("Symmetric", 21, 3, 49, 3, -1, 1))
sketch1.addConstraint(Sketcher.Constraint("Symmetric", 24, 3, 52, 3, -1, 1))
sketch1.addConstraint(Sketcher.Constraint("Symmetric", 26, 3, 54, 3, -1, 1))
sketch1.addConstraint(Sketcher.Constraint("Symmetric", 29, 3, 57, 3, -1, 1))
sketch1.addConstraint(Sketcher.Constraint("Symmetric", 8, 2, 36, 2, -1, 1))
sketch1.addConstraint(Sketcher.Constraint("Symmetric", 13, 2, 41, 2, -1, 1))
sketch1.addConstraint(Sketcher.Constraint("Symmetric", 22, 2, 50, 2, -1, 1))
sketch1.addConstraint(Sketcher.Constraint("Symmetric", 27, 2, 55, 2, -1, 1))
sketch1.addConstraint(Sketcher.Constraint("Symmetric", 17, 3, 19, 3, -2))
sketch1.addConstraint(Sketcher.Constraint("Symmetric", 15, 3, 21, 3, -2))
sketch1.addConstraint(Sketcher.Constraint("Symmetric", 12, 3, 24, 3, -2))
sketch1.addConstraint(Sketcher.Constraint("Symmetric", 10, 3, 26, 3, -2))
sketch1.addConstraint(Sketcher.Constraint("Symmetric", 7, 3, 29, 3, -2))
sketch1.addConstraint(Sketcher.Constraint("Symmetric", 4, 3, 31, 3, -2))
sketch1.addConstraint(Sketcher.Constraint("Symmetric", 13, 2, 22, 2, -2))
sketch1.addConstraint(Sketcher.Constraint("Symmetric", 8, 2, 27, 2, -2))
sketch1.addConstraint(Sketcher.Constraint("Parallel", 8, 9))
sketch1.addConstraint(Sketcher.Constraint("Parallel", 13, 14))
sketch1.addConstraint(Sketcher.Constraint("Perpendicular", 9, 22))
sketch1.addConstraint(Sketcher.Constraint("Parallel", 22, 23))
sketch1.addConstraint(Sketcher.Constraint("Perpendicular", 14, 27))
sketch1.addConstraint(Sketcher.Constraint("Parallel", 27, 28))
sketch1.addConstraint(Sketcher.Constraint("Perpendicular", 23, 36))
sketch1.addConstraint(Sketcher.Constraint("Parallel", 36, 37))
sketch1.addConstraint(Sketcher.Constraint("Perpendicular", 28, 41))
sketch1.addConstraint(Sketcher.Constraint("Parallel", 41, 42))
sketch1.addConstraint(Sketcher.Constraint("Perpendicular", 37, 50))
sketch1.addConstraint(Sketcher.Constraint("Parallel", 50, 51))
sketch1.addConstraint(Sketcher.Constraint("Perpendicular", 42, 55))
sketch1.addConstraint(Sketcher.Constraint("Parallel", 55, 56))
sketch1.addConstraint(Sketcher.Constraint("Horizontal", 14, 2, 21, 1))
sketch1.addConstraint(Sketcher.Constraint("Horizontal", 5, 2, 30, 1))
sketch1.addConstraint(Sketcher.Constraint("Horizontal", 3, 2, 31, 1))
sketch1.addConstraint(Sketcher.Constraint("Horizontal", 1, 2, 33, 1))
sketch1.addConstraint(Sketcher.Constraint("Vertical", 18, 2, 45, 1))
sketch1.addConstraint(Sketcher.Constraint("Equal", 46, 3))
sketch1.addConstraint(Sketcher.Constraint("Equal", 8, 9))
sketch1.addConstraint(Sketcher.Constraint("Equal", 9, 13))
sketch1.addConstraint(Sketcher.Constraint("Equal", 13, 14))
sketch1.addConstraint(Sketcher.Constraint("Diameter", 58, 5.5))
sketch1.addConstraint(Sketcher.Constraint("Radius", 0, 7.5))
sketch1.addConstraint(Sketcher.Constraint("Radius", 2, 14.5906))
sketch1.addConstraint(Sketcher.Constraint("DistanceX", 1, 2, 1, 1, 0.6888))
sketch1.addConstraint(Sketcher.Constraint("DistanceX", 18, 1, 18, 2, 1.4968))
sketch1.addConstraint(Sketcher.Constraint("DistanceY", 10, 3, -1, 1, 7.617))
sketch1.addConstraint(Sketcher.Constraint("DistanceX", -1, 1, 12, 3, 7.617))
sketch1.addConstraint(Sketcher.Constraint("DistanceX", 0, 1, -1, 1, 7.381))
sketch1.addConstraint(Sketcher.Constraint("DistanceY", -1, 1, 6, 1, 2.538))
sketch1.addConstraint(Sketcher.Constraint("DistanceX", 9, 2, -1, 1, 9.863))
sketch1.addConstraint(Sketcher.Constraint("DistanceY", -1, 1, 10, 1, 4.843))
sketch1.addConstraint(Sketcher.Constraint("DistanceX", 11, 1, -1, 1, 4.843))
sketch1.addConstraint(Sketcher.Constraint("DistanceY", -1, 1, 12, 1, 9.863))
sketch1.addConstraint(Sketcher.Constraint("DistanceX", 15, 1, -1, 1, 2.538))
sketch1.addConstraint(Sketcher.Constraint("DistanceX", 16, 1, -1, 1, 1.331))
sketch1.addConstraint(Sketcher.Constraint("DistanceY", -1, 1, 17, 1, 11.821))
sketch1.addConstraint(Sketcher.Constraint("Distance", 8, 0.7485))
sketch1.addConstraint(Sketcher.Constraint("DistanceX", 7, 3, -1, 1, 0.0626))
sketch1.setExpression("Constraints[158]", "Params.sketch1_diameter")
sketch1.setExpression("Constraints[159]", "Params.sketch1_radius")
pad1 = body.newObject("PartDesign::Pad", "Pad")
pad1.Profile = sketch1
pad1.setExpression("Length", "Params.pad1_length")
pad1.Reversed = True

sketch2 = body.newObject("Sketcher::SketchObject", "Sketch001")
sketch2.AttachmentSupport = (doc.getObject("XZ_Plane"), [""])
sketch2.MapMode = "FlatFace"
sketch2.AttachmentOffset = App.Placement(Vector(0, 0, -5), App.Rotation())
sketch2.addGeometry(Part.LineSegment(Vector(2.3, -4, 0), Vector(-2.3, -4, 0)), False)
sketch2.addGeometry(Part.LineSegment(Vector(-2.3, -4, 0), Vector(-4.6, 0, 0)), False)
sketch2.addGeometry(Part.LineSegment(Vector(-4.6, 0, 0), Vector(-2.3, 4, 0)), False)
sketch2.addGeometry(Part.LineSegment(Vector(-2.3, 4, 0), Vector(2.3, 4, 0)), False)
sketch2.addGeometry(Part.LineSegment(Vector(2.3, 4, 0), Vector(4.6, 0, 0)), False)
sketch2.addGeometry(Part.LineSegment(Vector(4.6, 0, 0), Vector(2.3, -4, 0)), False)
sketch2.addConstraint(Sketcher.Constraint("Coincident", 0, 2, 1, 1))
sketch2.addConstraint(Sketcher.Constraint("Coincident", 1, 2, 2, 1))
sketch2.addConstraint(Sketcher.Constraint("Coincident", 2, 2, 3, 1))
sketch2.addConstraint(Sketcher.Constraint("Coincident", 3, 2, 4, 1))
sketch2.addConstraint(Sketcher.Constraint("Coincident", 4, 2, 5, 1))
sketch2.addConstraint(Sketcher.Constraint("Coincident", 5, 2, 0, 1))
sketch2.addConstraint(Sketcher.Constraint("Horizontal", 0))
sketch2.addConstraint(Sketcher.Constraint("Horizontal", 3))
sketch2.addConstraint(Sketcher.Constraint("Symmetric", 0, 2, 3, 2, -1, 1))
sketch2.addConstraint(Sketcher.Constraint("Symmetric", 1, 2, 4, 2, -1, 1))
sketch2.addConstraint(Sketcher.Constraint("PointOnObject", 1, 2, -1))
sketch2.addConstraint(Sketcher.Constraint("Parallel", 2, 5))
sketch2.addConstraint(Sketcher.Constraint("Vertical", 0, 2, 2, 2))
sketch2.addConstraint(Sketcher.Constraint("DistanceY", 0, 2, 2, 2, 8.0))
sketch2.addConstraint(Sketcher.Constraint("Angle", 1, Q("120 deg")))
sketch2.addConstraint(Sketcher.Constraint("DistanceX", 0, 2, 0, 1, 4.6188))
pocket1 = body.newObject("PartDesign::Pocket", "Pocket")
pocket1.Profile = sketch2
pocket1.setExpression("Length", "Params.pocket1_length")
pocket1.Reversed = True
doc.recompute()

datumplane = body.newObject("PartDesign::Plane", "DatumPlane")
datumplane.AttachmentSupport = (doc.getObject("XZ_Plane"), [""])
datumplane.MapMode = "FlatFace"
datumplane.AttachmentOffset = App.Placement(Vector(0, 0, -2.5), App.Rotation())
mirrored = body.newObject("PartDesign::Mirrored", "Mirrored")
mirrored.Originals = [pocket1]
mirrored.MirrorPlane = (datumplane, [""])
body.Tip = mirrored

doc.recompute()
